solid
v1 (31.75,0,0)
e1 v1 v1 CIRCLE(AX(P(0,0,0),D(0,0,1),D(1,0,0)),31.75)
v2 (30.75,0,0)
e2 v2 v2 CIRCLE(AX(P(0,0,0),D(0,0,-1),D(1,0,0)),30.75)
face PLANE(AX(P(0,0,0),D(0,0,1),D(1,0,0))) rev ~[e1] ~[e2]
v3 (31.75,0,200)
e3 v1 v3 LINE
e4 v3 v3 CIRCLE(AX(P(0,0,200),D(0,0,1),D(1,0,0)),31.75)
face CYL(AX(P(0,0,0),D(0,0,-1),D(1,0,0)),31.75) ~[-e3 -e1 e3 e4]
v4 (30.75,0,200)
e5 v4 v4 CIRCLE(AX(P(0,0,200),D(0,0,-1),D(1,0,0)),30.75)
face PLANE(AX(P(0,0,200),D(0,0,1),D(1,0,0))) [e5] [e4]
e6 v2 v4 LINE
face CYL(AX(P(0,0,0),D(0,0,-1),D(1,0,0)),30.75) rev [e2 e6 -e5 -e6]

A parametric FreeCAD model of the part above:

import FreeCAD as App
import Part
import Sketcher
from FreeCAD import Vector
Q = App.Units.Quantity


def faces_at(feature, points):
    """Names of the faces that lie closest to the given points."""
    faces = feature.Shape.Faces
    near = lambda p: min(range(len(faces)), key=lambda i: faces[i].distToShape(Part.Vertex(*p))[0])
    return sorted({f"Face{near(p) + 1}" for p in points})

doc = App.newDocument("Part")
body = doc.addObject("PartDesign::Body", "Body")

sketch1 = doc.addObject("Sketcher::SketchObject", "Sketch")
body.addObject(sketch1)
sketch1.AttachmentSupport = (doc.XY_Plane, [""])
sketch1.MapMode = "FlatFace"
sketch1.addGeometry(Part.Circle(Vector(0, 0, 0), Vector(0, 0, 1), 32), False)
sketch1.addConstraint([
    Sketcher.Constraint("Coincident", 0, 3, -1, 1),
    Sketcher.Constraint("Diameter", 0, Q("63.5 mm")),
])
pad1 = doc.addObject("PartDesign::Pad", "Pad")
body.addObject(pad1)
pad1.Profile = sketch1
pad1.Length = 200
doc.recompute()

thickness = doc.addObject("PartDesign::Thickness", "Thickness")
body.addObject(thickness)
thickness.Base = (pad1, faces_at(pad1, [(-16.877, -4.918, 0), (-16.877, -4.918, 200)]))
thickness.Value = 1
thickness.Reversed = True
thickness.Join = "Intersection"

doc.recompute()
